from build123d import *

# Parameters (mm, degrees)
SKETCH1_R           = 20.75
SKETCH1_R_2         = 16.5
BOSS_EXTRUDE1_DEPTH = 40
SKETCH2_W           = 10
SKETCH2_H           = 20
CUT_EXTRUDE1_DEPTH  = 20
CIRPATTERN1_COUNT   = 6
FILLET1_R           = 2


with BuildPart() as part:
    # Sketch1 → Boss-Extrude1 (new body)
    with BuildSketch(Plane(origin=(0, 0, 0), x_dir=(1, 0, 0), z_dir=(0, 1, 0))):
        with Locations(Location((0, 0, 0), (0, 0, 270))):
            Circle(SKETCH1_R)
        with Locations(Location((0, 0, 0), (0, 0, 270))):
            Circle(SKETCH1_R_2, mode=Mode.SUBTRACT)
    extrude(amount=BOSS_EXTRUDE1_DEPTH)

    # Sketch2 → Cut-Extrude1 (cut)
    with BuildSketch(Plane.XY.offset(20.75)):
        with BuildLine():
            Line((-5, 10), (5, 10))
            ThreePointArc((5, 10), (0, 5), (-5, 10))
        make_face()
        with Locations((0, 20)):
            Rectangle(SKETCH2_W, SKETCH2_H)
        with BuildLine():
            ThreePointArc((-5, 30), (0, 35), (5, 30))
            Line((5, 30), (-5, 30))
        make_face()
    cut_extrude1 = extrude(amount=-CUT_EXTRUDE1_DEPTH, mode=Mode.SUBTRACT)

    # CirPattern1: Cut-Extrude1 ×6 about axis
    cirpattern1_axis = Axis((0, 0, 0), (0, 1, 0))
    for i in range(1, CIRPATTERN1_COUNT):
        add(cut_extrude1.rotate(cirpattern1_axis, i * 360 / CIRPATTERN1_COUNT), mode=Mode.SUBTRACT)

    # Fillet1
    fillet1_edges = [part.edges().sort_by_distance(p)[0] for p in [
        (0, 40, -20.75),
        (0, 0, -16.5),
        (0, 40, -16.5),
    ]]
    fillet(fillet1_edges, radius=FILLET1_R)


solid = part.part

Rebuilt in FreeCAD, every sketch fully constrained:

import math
import FreeCAD as App
import Part
import Sketcher

V = App.Vector
Q = App.Units.Quantity


def edges_at(feature, points):
    """Names of the edges that pass closest to the given points."""
    edges = feature.Shape.Edges
    near = lambda p: min(range(len(edges)), key=lambda i: edges[i].distToShape(Part.Vertex(*p))[0])
    return sorted({f"Edge{near(p) + 1}" for p in points})

doc = App.newDocument("Part")
body = doc.addObject("PartDesign::Body", "Body")

# Sketch on XZ plane
sketch1 = body.newObject("Sketcher::SketchObject", "Sketch")
sketch1.AttachmentSupport = (doc.getObject("XZ_Plane"), [""])
sketch1.MapMode = "FlatFace"
sketch1.addGeometry([
    Part.Circle(V(0, 0, 0), V(0, 0, 1), 21),
    Part.Circle(V(0, 0, 0), V(0, 0, 1), 16),
], False)
sketch1.addConstraint([
    Sketcher.Constraint("Coincident", 0, 3, -1, 1),
    Sketcher.Constraint("Coincident", 1, 3, -1, 1),
    Sketcher.Constraint("Diameter", 1, Q("33 mm")),
    Sketcher.Constraint("Diameter", 0, Q("41.5 mm")),
])
pad1 = body.newObject("PartDesign::Pad", "Pad")
pad1.Profile = sketch1
pad1.Length = 40
pad1.Reversed = True

# Sketch on XY plane
sketch2 = body.newObject("Sketcher::SketchObject", "Sketch001")
sketch2.AttachmentSupport = (doc.getObject("XY_Plane"), [""])
sketch2.MapMode = "FlatFace"
sketch2.AttachmentOffset = App.Placement(V(0, 0, 20.75), App.Rotation())
sketch2.addGeometry([
    Part.ArcOfCircle(Part.Circle(V(0, 10, 0), V(0, 0, 1), 5), math.radians(180), math.radians(360)),
    Part.LineSegment(V(5, 10, 0), V(5, 30, 0)),
    Part.ArcOfCircle(Part.Circle(V(0, 30, 0), V(0, 0, 1), 5), math.radians(0), math.radians(180)),
    Part.LineSegment(V(-5, 30, 0), V(-5, 10, 0)),
], False)
sketch2.addConstraint([
    Sketcher.Constraint("Tangent", 0, 2, 1, 1),
    Sketcher.Constraint("Tangent", 1, 2, 2, 1),
    Sketcher.Constraint("Tangent", 2, 2, 3, 1),
    Sketcher.Constraint("Tangent", 3, 2, 0, 1),
    Sketcher.Constraint("Vertical", 1),
    Sketcher.Constraint("Vertical", 3),
    Sketcher.Constraint("PointOnObject", 0, 3, -2),
    Sketcher.Constraint("Radius", 0, Q("5 mm")),
    Sketcher.Constraint("DistanceY", 1, 1, 1, 2, Q("20 mm")),
    Sketcher.Constraint("DistanceY", -1, 1, 0, 3, Q("10 mm")),
])
pocket1 = body.newObject("PartDesign::Pocket", "Pocket")
pocket1.Profile = sketch2
pocket1.Length = 20
doc.recompute()

polarpattern = body.newObject("PartDesign::PolarPattern", "PolarPattern")
polarpattern.Originals = [pocket1]
polarpattern.Axis = (doc.getObject("Y_Axis"), [""])
polarpattern.Angle = 360
polarpattern.Occurrences = 6
body.Tip = polarpattern
doc.recompute()

fillet = body.newObject("PartDesign::Fillet", "Fillet")
fillet.Base = (polarpattern, edges_at(polarpattern, [(0, 40, -20.75), (0, 0, -16.5), (0, 40, -16.5)]))
fillet.Radius = 2

doc.recompute()
